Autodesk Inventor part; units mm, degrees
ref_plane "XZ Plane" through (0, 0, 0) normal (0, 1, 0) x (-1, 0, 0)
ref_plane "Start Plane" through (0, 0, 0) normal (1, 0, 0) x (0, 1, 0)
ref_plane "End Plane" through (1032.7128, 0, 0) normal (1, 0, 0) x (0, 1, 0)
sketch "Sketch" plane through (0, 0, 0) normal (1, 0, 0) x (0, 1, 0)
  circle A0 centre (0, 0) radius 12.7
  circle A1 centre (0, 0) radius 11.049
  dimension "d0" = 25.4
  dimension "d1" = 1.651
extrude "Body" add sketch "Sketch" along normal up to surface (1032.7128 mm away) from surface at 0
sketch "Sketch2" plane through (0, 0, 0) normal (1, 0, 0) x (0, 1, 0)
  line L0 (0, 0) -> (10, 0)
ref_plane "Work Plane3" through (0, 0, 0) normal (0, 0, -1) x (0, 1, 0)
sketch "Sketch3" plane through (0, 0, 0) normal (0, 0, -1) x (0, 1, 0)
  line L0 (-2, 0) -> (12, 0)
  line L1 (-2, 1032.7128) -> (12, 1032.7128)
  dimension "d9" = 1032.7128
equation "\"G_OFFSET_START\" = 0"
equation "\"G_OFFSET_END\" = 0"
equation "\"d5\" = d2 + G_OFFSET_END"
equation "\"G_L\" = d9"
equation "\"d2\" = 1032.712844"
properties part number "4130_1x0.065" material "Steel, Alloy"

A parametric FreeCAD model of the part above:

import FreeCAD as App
import Part
import Sketcher
Q = App.Units.Quantity

doc = App.newDocument("Part")
params = doc.addObject("Spreadsheet::Sheet", "Params")
for row, (alias, value) in enumerate([
    ("sketch1_diameter", "1 in"),
    ("sketch1_diameter2", "0.87 in"),
    ("pad1_length", "1032.7128 mm"),
], start=1):
    params.set(f"A{row}", alias)
    params.set(f"B{row}", "=" + value)
    params.setAlias(f"B{row}", alias)

body = doc.addObject("PartDesign::Body", "Body")

# Sketch on YZ plane
sketch1 = doc.addObject("Sketcher::SketchObject", "Sketch")
body.addObject(sketch1)
sketch1.AttachmentSupport = (doc.YZ_Plane, [""])
sketch1.MapMode = "FlatFace"
sketch1.addGeometry([
    Part.Circle(App.Vector(0, 0, 0), App.Vector(0, 0, 1), 12.7),
    Part.Circle(App.Vector(0, 0, 0), App.Vector(0, 0, 1), 11.049),
], False)
sketch1.addConstraint([
    Sketcher.Constraint("Coincident", 0, 3, -1, 1),
    Sketcher.Constraint("Coincident", 1, 3, -1, 1),
    Sketcher.Constraint("Diameter", 0, Q("1 in")),
    Sketcher.Constraint("Diameter", 1, Q("0.87 in")),
])
sketch1.setExpression("Constraints[2]", "Params.sketch1_diameter")
sketch1.setExpression("Constraints[3]", "Params.sketch1_diameter2")
pad1 = doc.addObject("PartDesign::Pad", "Pad")
body.addObject(pad1)
pad1.Profile = sketch1
pad1.setExpression("Length", "Params.pad1_length")

doc.recompute()
